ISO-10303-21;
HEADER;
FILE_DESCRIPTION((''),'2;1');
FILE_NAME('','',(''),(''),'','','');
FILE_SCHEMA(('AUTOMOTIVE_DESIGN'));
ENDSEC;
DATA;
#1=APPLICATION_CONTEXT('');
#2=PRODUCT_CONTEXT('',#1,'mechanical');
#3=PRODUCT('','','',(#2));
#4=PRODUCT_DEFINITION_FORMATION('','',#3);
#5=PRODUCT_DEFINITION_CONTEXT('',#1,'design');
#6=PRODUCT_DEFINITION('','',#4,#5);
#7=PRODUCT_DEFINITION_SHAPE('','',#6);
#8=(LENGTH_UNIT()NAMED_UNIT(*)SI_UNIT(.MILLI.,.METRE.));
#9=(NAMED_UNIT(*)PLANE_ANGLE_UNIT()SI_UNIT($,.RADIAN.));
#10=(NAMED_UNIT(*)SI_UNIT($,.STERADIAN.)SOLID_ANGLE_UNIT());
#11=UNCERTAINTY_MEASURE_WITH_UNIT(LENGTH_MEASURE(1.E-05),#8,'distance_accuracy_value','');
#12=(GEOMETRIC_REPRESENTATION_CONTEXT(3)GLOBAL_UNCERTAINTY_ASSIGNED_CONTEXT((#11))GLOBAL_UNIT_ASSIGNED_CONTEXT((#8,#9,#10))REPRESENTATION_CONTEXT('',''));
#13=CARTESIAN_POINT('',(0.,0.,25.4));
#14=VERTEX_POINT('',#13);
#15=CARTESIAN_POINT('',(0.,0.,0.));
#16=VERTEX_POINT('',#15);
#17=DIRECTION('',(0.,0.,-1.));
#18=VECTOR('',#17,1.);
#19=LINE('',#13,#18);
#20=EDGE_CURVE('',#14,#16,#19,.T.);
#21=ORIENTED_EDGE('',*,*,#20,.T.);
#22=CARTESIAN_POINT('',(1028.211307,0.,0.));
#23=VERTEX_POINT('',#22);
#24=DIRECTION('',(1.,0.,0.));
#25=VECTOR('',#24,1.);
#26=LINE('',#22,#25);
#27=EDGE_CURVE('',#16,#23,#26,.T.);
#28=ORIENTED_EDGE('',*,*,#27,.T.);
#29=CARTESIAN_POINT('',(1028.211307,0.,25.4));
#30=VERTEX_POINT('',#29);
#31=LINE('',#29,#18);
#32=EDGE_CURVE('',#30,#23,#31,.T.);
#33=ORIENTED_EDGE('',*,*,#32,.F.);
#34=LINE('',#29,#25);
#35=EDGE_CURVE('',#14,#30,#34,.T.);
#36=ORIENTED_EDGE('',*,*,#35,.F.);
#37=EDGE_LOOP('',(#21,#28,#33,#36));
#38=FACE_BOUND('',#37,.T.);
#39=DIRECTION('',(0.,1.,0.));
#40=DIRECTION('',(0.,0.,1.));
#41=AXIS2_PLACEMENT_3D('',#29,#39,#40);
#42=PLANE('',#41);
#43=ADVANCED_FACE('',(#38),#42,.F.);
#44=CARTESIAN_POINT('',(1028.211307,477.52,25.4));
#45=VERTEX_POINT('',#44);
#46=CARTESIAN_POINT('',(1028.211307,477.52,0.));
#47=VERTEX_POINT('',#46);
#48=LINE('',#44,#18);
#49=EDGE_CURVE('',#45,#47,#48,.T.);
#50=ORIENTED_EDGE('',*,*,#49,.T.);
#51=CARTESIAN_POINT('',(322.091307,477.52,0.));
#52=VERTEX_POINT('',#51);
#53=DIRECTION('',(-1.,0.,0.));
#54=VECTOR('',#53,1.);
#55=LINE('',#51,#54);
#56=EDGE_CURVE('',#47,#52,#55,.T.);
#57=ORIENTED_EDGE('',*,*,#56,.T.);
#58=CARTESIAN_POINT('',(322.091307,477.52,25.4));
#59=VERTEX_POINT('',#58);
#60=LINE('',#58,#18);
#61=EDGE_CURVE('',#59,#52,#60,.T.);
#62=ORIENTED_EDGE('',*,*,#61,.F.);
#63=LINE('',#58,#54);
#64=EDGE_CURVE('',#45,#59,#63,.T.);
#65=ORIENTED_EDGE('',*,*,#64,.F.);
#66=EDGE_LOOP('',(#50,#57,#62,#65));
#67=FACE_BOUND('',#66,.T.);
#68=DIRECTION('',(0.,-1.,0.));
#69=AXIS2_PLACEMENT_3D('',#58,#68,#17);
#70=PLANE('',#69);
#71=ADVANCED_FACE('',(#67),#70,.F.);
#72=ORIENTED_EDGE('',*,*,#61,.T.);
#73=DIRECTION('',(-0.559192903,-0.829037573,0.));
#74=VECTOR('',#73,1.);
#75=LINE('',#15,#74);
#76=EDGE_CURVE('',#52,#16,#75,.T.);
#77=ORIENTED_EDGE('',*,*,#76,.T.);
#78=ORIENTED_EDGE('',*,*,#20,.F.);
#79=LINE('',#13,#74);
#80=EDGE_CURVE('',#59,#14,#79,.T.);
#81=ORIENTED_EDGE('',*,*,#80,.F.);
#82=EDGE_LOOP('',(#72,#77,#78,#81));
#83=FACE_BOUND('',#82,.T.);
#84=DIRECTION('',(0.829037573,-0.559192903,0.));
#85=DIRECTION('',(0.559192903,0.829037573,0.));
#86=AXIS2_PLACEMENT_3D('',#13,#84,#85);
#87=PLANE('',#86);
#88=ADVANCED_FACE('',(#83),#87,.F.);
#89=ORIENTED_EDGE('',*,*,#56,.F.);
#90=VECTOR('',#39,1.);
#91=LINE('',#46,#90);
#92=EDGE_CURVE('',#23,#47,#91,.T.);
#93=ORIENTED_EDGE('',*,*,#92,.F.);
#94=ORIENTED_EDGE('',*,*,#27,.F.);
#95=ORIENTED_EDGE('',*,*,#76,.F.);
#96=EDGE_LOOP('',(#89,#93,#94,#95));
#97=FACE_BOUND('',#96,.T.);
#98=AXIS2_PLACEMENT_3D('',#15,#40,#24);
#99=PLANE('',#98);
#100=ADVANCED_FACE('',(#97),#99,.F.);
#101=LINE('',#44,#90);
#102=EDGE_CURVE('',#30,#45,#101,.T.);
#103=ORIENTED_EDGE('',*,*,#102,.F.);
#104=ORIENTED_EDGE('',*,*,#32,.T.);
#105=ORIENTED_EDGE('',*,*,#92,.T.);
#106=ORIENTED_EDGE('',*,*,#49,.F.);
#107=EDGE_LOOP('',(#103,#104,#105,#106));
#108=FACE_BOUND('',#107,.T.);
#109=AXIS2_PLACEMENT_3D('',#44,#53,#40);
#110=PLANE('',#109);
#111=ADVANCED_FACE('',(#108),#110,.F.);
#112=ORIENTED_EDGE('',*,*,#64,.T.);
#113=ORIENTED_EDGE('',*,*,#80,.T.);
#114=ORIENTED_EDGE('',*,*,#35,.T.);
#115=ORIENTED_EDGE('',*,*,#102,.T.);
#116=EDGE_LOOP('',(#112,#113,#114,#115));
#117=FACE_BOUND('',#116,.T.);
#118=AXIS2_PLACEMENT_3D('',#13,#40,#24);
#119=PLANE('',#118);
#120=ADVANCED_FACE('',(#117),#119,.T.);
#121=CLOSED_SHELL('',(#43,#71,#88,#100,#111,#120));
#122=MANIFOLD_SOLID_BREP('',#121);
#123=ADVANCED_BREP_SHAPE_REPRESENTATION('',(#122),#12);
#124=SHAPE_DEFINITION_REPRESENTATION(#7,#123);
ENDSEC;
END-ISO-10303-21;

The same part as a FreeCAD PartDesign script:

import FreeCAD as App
import Part
import Sketcher

V = App.Vector
Q = App.Units.Quantity

doc = App.newDocument("Part")
params = doc.addObject("Spreadsheet::Sheet", "Params")
for row, (alias, value) in enumerate([
    ("sketch1_width", "27.8 in"),
    ("sketch1_height", "18.8 in"),
    ("pad1_length", "1 in"),
], start=1):
    params.set(f"A{row}", alias)
    params.set(f"B{row}", "=" + value)
    params.setAlias(f"B{row}", alias)

body = doc.addObject("PartDesign::Body", "Body")

sketch1 = body.newObject("Sketcher::SketchObject", "Sketch")
sketch1.AttachmentSupport = (doc.getObject("XY_Plane"), [""])
sketch1.MapMode = "FlatFace"
sketch1.addGeometry(Part.LineSegment(V(322, 478, 0), V(0, 0, 0)), False)
sketch1.addGeometry(Part.LineSegment(V(0, 0, 0), V(1028, 0, 0)), False)
sketch1.addGeometry(Part.LineSegment(V(1028, 0, 0), V(1028, 478, 0)), False)
sketch1.addGeometry(Part.LineSegment(V(1028, 478, 0), V(322, 478, 0)), False)
sketch1.addConstraint(Sketcher.Constraint("Coincident", 0, 2, 1, 1))
sketch1.addConstraint(Sketcher.Constraint("Coincident", 1, 2, 2, 1))
sketch1.addConstraint(Sketcher.Constraint("Coincident", 2, 2, 3, 1))
sketch1.addConstraint(Sketcher.Constraint("Coincident", 3, 2, 0, 1))
sketch1.addConstraint(Sketcher.Constraint("Horizontal", 1))
sketch1.addConstraint(Sketcher.Constraint("Vertical", 2))
sketch1.addConstraint(Sketcher.Constraint("Horizontal", 3))
sketch1.addConstraint(Sketcher.Constraint("Coincident", 0, 2, -1, 1))
sketch1.addConstraint(Sketcher.Constraint("DistanceX", 3, 2, 3, 1, Q("27.8 in")))
sketch1.addConstraint(Sketcher.Constraint("DistanceY", 2, 1, 2, 2, Q("18.8 in")))
sketch1.addConstraint(Sketcher.Constraint("Angle", 0, Q("-124 deg")))
sketch1.setExpression("Constraints[8]", "Params.sketch1_width")
sketch1.setExpression("Constraints[9]", "Params.sketch1_height")
pad1 = body.newObject("PartDesign::Pad", "Pad")
pad1.Profile = sketch1
pad1.setExpression("Length", "Params.pad1_length")

doc.recompute()
